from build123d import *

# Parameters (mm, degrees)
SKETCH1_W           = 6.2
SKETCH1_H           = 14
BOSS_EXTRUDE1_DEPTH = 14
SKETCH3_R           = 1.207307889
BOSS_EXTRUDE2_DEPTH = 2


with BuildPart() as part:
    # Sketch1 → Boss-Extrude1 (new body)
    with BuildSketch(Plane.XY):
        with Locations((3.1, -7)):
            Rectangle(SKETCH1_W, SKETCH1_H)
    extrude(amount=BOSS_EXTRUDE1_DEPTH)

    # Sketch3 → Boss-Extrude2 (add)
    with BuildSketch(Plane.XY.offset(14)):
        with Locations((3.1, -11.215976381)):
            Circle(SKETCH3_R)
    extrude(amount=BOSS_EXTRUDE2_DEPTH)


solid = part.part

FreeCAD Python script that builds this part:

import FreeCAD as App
import Part
import Sketcher

V = App.Vector


def add_polygon(sketch, points):
    """Adds a closed chain of lines whose ends are joined by coincident constraints."""
    first, n = sketch.GeometryCount, len(points)
    for a, b in zip(points, points[1:] + points[:1]):
        sketch.addGeometry(Part.LineSegment(App.Vector(*a, 0), App.Vector(*b, 0)), False)
    for i in range(n):
        sketch.addConstraint(Sketcher.Constraint("Coincident", first + i, 2, first + (i + 1) % n, 1))

doc = App.newDocument("Part")
body = doc.addObject("PartDesign::Body", "Body")

sketch1 = body.newObject("Sketcher::SketchObject", "Sketch")
sketch1.AttachmentSupport = (doc.getObject("XY_Plane"), [""])
sketch1.MapMode = "FlatFace"
add_polygon(sketch1, [(0, 0), (0, -14), (6, -14), (6, 0)])
sketch1.addConstraint([
    Sketcher.Constraint("Vertical", 0),
    Sketcher.Constraint("Horizontal", 1),
    Sketcher.Constraint("Vertical", 2),
    Sketcher.Constraint("Horizontal", 3),
    Sketcher.Constraint("Coincident", 3, 2, -1, 1),
    Sketcher.Constraint("DistanceY", 0, 2, 0, 1, 14.0),
    Sketcher.Constraint("DistanceX", 1, 1, 1, 2, 6.2),
])
pad1 = body.newObject("PartDesign::Pad", "Pad")
pad1.Profile = sketch1
pad1.Length = 14

sketch2 = body.newObject("Sketcher::SketchObject", "Sketch001")
sketch2.AttachmentSupport = (doc.getObject("XY_Plane"), [""])
sketch2.MapMode = "FlatFace"
sketch2.AttachmentOffset = App.Placement(V(0, 0, 14), App.Rotation())
sketch2.addGeometry(Part.Circle(V(3.1, -11.2, 0), V(0, 0, 1), 1.2), False)
sketch2.addConstraint([
    Sketcher.Constraint("DistanceX", -1, 1, 0, 3, 3.1),
    Sketcher.Constraint("Diameter", 0, 2.414616),
    Sketcher.Constraint("DistanceY", 0, 3, -1, 1, 11.215976),
])
pad2 = body.newObject("PartDesign::Pad", "Pad001")
pad2.Profile = sketch2
pad2.Length = 2

doc.recompute()
